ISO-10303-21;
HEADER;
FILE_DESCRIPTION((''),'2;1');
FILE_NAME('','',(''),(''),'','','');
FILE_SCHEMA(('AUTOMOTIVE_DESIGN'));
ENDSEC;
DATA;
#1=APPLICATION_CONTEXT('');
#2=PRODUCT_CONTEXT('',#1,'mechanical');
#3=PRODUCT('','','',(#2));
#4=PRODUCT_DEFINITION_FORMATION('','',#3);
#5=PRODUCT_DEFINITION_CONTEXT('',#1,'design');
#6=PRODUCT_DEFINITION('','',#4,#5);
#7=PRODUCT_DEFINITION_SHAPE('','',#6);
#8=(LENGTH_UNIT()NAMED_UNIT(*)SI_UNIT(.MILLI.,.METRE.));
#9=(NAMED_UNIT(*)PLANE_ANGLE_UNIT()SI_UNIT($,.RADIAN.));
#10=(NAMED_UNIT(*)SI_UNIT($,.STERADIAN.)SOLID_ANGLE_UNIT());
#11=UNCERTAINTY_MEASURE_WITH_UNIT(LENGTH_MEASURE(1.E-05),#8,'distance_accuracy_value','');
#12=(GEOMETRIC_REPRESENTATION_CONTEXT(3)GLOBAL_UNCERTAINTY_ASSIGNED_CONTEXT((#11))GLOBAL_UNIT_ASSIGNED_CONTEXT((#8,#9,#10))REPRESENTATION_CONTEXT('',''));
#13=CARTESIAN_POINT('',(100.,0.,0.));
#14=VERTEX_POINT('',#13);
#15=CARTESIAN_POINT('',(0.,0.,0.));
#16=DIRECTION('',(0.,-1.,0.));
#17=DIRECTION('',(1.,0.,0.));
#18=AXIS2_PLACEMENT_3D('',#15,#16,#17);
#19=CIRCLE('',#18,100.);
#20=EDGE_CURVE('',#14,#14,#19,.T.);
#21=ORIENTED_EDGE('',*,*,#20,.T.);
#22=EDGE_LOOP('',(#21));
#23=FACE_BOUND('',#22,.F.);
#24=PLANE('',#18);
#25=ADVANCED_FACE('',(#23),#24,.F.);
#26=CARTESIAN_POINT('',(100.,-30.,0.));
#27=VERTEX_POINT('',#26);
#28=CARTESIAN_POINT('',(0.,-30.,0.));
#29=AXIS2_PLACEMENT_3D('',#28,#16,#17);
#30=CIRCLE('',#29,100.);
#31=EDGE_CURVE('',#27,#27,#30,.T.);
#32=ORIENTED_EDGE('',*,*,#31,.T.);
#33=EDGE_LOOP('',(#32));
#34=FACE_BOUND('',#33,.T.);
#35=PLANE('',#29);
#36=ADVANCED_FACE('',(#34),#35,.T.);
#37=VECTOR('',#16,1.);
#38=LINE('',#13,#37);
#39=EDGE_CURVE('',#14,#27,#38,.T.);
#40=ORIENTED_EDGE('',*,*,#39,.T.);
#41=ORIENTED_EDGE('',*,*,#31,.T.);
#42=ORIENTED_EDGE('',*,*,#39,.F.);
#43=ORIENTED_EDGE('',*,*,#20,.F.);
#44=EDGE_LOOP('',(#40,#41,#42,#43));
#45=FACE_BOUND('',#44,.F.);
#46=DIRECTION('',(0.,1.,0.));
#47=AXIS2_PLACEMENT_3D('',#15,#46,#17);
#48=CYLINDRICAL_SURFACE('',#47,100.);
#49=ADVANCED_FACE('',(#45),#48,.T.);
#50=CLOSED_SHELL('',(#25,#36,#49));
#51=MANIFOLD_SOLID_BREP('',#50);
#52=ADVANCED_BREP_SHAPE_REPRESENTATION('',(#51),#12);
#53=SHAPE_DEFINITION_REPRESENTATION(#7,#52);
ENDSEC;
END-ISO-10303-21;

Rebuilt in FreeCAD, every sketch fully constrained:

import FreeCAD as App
import Part
import Sketcher


def add_polygon(sketch, points):
    """Adds a closed chain of lines whose ends are joined by coincident constraints."""
    first, n = sketch.GeometryCount, len(points)
    for a, b in zip(points, points[1:] + points[:1]):
        sketch.addGeometry(Part.LineSegment(App.Vector(*a, 0), App.Vector(*b, 0)), False)
    for i in range(n):
        sketch.addConstraint(Sketcher.Constraint("Coincident", first + i, 2, first + (i + 1) % n, 1))

doc = App.newDocument("Part")
body = doc.addObject("PartDesign::Body", "Body")

sketch1 = body.newObject("Sketcher::SketchObject", "Sketch")
sketch1.AttachmentSupport = (doc.getObject("XZ_Plane"), [""])
sketch1.MapMode = "FlatFace"
sketch1.addGeometry(Part.Circle(App.Vector(0, 0, 0), App.Vector(0, 0, 1), 100), False)
sketch1.addConstraint([
    Sketcher.Constraint("Coincident", 0, 3, -1, 1),
    Sketcher.Constraint("Diameter", 0, 200.0),
])
pad1 = body.newObject("PartDesign::Pad", "Pad")
pad1.Profile = sketch1
pad1.Length = 30

sketch2 = body.newObject("Sketcher::SketchObject", "Sketch001")
sketch2.AttachmentSupport = (doc.getObject("XZ_Plane"), [""])
sketch2.MapMode = "FlatFace"
sketch2.AttachmentOffset = App.Placement(App.Vector(0, 0, 30), App.Rotation())
add_polygon(sketch2, [(-5, 82), (5, 82), (7, 87), (14, 98), (-14, 98), (-7, 87)])
sketch2.addConstraint([
    Sketcher.Constraint("Horizontal", 0),
    Sketcher.Constraint("Horizontal", 3),
    Sketcher.Constraint("Symmetric", 1, 2, 4, 2, -2),
    Sketcher.Constraint("Equal", 2, 4),
    Sketcher.Constraint("Equal", 1, 5),
    Sketcher.Constraint("DistanceX", 0, 1, 0, 2, 10.0),
    Sketcher.Constraint("DistanceX", 3, 2, 3, 1, 27.0),
    Sketcher.Constraint("DistanceY", 0, 2, 2, 2, 16.0),
    Sketcher.Constraint("DistanceY", -1, 1, 1, 2, 87.184819),
    Sketcher.Constraint("Distance", 1, 5.654657),
    Sketcher.Constraint("Distance", 2, 12.566394),
])
pad2 = body.newObject("PartDesign::Pad", "Pad001")
pad2.Profile = sketch2
pad2.Length = 30
pad2.Reversed = True

doc.recompute()
